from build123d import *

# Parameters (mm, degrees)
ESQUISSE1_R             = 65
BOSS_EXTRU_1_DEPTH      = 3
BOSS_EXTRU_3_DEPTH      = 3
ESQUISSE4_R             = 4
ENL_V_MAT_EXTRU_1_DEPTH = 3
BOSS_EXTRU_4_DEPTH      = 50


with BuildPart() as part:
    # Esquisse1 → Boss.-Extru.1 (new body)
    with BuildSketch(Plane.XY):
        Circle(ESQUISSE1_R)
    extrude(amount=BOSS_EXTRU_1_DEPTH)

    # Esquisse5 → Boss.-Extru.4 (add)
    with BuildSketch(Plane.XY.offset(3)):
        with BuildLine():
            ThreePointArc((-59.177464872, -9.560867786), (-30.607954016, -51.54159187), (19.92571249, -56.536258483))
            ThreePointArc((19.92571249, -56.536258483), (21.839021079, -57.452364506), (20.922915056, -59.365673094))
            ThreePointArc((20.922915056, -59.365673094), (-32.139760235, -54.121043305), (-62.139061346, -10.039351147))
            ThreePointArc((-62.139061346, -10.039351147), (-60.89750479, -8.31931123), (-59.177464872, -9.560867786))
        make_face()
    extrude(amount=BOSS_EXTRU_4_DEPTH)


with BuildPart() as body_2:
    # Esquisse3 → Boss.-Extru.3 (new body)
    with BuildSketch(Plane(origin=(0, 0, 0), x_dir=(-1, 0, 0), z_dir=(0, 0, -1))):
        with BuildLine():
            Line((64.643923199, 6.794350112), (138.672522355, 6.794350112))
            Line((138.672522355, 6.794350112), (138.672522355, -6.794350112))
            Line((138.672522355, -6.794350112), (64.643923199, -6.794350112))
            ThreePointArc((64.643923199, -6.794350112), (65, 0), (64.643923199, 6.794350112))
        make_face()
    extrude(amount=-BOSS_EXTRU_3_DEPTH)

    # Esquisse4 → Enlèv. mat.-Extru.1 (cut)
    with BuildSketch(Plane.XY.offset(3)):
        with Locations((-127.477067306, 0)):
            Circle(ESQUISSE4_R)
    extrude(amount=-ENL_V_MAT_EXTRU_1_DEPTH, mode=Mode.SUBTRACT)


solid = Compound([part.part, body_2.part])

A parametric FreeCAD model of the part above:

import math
import FreeCAD as App
import Part
import Sketcher

V = App.Vector

doc = App.newDocument("Part")
body = doc.addObject("PartDesign::Body", "Body")

sketch1 = body.newObject("Sketcher::SketchObject", "Sketch")
sketch1.AttachmentSupport = (doc.getObject("XY_Plane"), [""])
sketch1.MapMode = "FlatFace"
sketch1.addGeometry(Part.Circle(V(0, 0, 0), V(0, 0, 1), 65), False)
sketch1.addConstraint([
    Sketcher.Constraint("Coincident", 0, 3, -1, 1),
    Sketcher.Constraint("Diameter", 0, 130.0),
])
pad1 = body.newObject("PartDesign::Pad", "Pad")
pad1.Profile = sketch1
pad1.Length = 3

sketch2 = body.newObject("Sketcher::SketchObject", "Sketch001")
sketch2.AttachmentSupport = (doc.getObject("XY_Plane"), [""])
sketch2.MapMode = "FlatFace"
sketch2.AttachmentOffset = App.Placement(V(0, 0, 3), App.Rotation())
sketch2.addGeometry([
    Part.ArcOfCircle(Part.Circle(V(0, 0, 0), V(0, 0, 1), 59.9), math.radians(-171), math.radians(-71)),
    Part.ArcOfCircle(Part.Circle(V(-60.7, -9.8, 0), V(0, 0, 1), 1.5), math.radians(9), math.radians(189)),
    Part.ArcOfCircle(Part.Circle(V(0, 0, 0), V(0, 0, 1), 62.9), math.radians(-171), math.radians(-71)),
    Part.ArcOfCircle(Part.Circle(V(20.4, -58, 0), V(0, 0, 1), 1.5), math.radians(-71), math.radians(109)),
], False)
sketch2.addConstraint([
    Sketcher.Constraint("Tangent", 0, 1, 1, 1),
    Sketcher.Constraint("Tangent", 1, 2, 2, 1),
    Sketcher.Constraint("Tangent", 2, 2, 3, 1),
    Sketcher.Constraint("Tangent", 3, 2, 0, 2),
    Sketcher.Constraint("Coincident", 0, 3, -1, 1),
    Sketcher.Constraint("Coincident", 2, 3, -1, 1),
    Sketcher.Constraint("Radius", 1, 1.5),
    Sketcher.Constraint("Radius", 0, 59.944829),
    Sketcher.Constraint("DistanceY", 3, 3, 0, 1, 48.390098),
    Sketcher.Constraint("DistanceX", 3, 2, 3, 3, 0.498601),
])
pad2 = body.newObject("PartDesign::Pad", "Pad001")
pad2.Profile = sketch2
pad2.Length = 50
body2 = doc.addObject("PartDesign::Body", "Body001")

sketch3 = body2.newObject("Sketcher::SketchObject", "Sketch002")
sketch3.AttachmentSupport = (doc.getObject("XY_Plane001"), [""])
sketch3.MapMode = "FlatFace"
sketch3.addGeometry([
    Part.LineSegment(V(-139, 7, 0), V(-65, 7, 0)),
    Part.ArcOfCircle(Part.Circle(V(0, 0, 0), V(0, 0, 1), 65), math.radians(174), math.radians(186)),
    Part.LineSegment(V(-65, -7, 0), V(-139, -7, 0)),
    Part.LineSegment(V(-139, -7, 0), V(-139, 7, 0)),
], False)
sketch3.addConstraint([
    Sketcher.Constraint("Coincident", 0, 2, 1, 1),
    Sketcher.Constraint("Coincident", 1, 2, 2, 1),
    Sketcher.Constraint("Coincident", 2, 2, 3, 1),
    Sketcher.Constraint("Coincident", 3, 2, 0, 1),
    Sketcher.Constraint("Horizontal", 0),
    Sketcher.Constraint("Horizontal", 2),
    Sketcher.Constraint("Vertical", 3),
    Sketcher.Constraint("Coincident", 1, 3, -1, 1),
    Sketcher.Constraint("Vertical", 0, 2, 1, 2),
    Sketcher.Constraint("Radius", 1, 65.0),
    Sketcher.Constraint("DistanceX", 0, 1, 0, 2, 74.028599),
    Sketcher.Constraint("DistanceY", 3, 1, 3, 2, 13.5887),
])
pad3 = body2.newObject("PartDesign::Pad", "Pad002")
pad3.Profile = sketch3
pad3.Length = 3

sketch4 = body2.newObject("Sketcher::SketchObject", "Sketch003")
sketch4.AttachmentSupport = (doc.getObject("XY_Plane001"), [""])
sketch4.MapMode = "FlatFace"
sketch4.AttachmentOffset = App.Placement(V(0, 0, 3), App.Rotation())
sketch4.addGeometry(Part.Circle(V(-127.5, 0, 0), V(0, 0, 1), 4), False)
sketch4.addConstraint([
    Sketcher.Constraint("PointOnObject", 0, 3, -1),
    Sketcher.Constraint("Diameter", 0, 8.0),
    Sketcher.Constraint("DistanceX", 0, 3, -1, 1, 127.477067),
])
pocket1 = body2.newObject("PartDesign::Pocket", "Pocket")
pocket1.Profile = sketch4
pocket1.Length = 3

doc.recompute()
